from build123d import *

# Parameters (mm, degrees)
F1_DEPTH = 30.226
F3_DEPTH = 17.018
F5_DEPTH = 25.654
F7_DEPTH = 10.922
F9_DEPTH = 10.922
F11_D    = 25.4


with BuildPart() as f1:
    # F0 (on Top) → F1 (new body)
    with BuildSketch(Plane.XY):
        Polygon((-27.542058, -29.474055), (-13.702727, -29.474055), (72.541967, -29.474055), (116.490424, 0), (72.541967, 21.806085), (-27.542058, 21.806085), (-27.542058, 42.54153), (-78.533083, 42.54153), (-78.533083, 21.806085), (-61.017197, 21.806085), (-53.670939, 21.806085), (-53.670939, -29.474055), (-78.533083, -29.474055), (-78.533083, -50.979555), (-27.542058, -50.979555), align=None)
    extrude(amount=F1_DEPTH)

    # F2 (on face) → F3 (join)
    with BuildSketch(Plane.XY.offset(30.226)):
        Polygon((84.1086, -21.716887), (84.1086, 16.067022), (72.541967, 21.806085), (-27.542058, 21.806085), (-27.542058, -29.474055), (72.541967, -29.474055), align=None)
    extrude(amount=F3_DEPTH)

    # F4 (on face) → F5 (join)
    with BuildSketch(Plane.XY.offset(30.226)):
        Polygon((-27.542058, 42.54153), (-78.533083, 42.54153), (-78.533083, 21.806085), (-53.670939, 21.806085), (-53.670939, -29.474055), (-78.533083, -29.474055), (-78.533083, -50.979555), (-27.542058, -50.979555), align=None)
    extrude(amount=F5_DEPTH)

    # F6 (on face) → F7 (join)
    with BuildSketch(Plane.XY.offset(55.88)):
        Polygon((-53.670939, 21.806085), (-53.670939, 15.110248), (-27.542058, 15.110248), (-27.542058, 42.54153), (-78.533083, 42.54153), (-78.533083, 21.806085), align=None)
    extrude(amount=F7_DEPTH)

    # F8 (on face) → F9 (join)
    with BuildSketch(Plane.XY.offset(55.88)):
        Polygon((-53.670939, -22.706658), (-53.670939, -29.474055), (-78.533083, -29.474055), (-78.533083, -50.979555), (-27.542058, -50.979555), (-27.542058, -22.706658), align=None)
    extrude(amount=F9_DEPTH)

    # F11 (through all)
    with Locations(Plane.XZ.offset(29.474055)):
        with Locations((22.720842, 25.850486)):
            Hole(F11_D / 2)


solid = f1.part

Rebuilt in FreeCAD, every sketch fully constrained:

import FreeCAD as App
import Part
import Sketcher
from FreeCAD import Vector
Q = App.Units.Quantity


def add_polygon(sketch, points):
    """Adds a closed chain of lines whose ends are joined by coincident constraints."""
    first, n = sketch.GeometryCount, len(points)
    for a, b in zip(points, points[1:] + points[:1]):
        sketch.addGeometry(Part.LineSegment(App.Vector(*a, 0), App.Vector(*b, 0)), False)
    for i in range(n):
        sketch.addConstraint(Sketcher.Constraint("Coincident", first + i, 2, first + (i + 1) % n, 1))

doc = App.newDocument("Part")
body = doc.addObject("PartDesign::Body", "Body")

# Sketch on XY plane
sketch1 = body.newObject("Sketcher::SketchObject", "Sketch")
sketch1.AttachmentSupport = (doc.getObject("XY_Plane"), [""])
sketch1.MapMode = "FlatFace"
add_polygon(sketch1, [(-27.542058, -29.474055), (72.541967, -29.474055), (116.490424, 0), (72.541967, 21.806085), (-27.542058, 21.806085), (-27.542058, 42.54153), (-78.533083, 42.54153), (-78.533083, 21.806085), (-53.670939, 21.806085), (-53.670939, -29.474055), (-78.533083, -29.474055), (-78.533083, -50.979555), (-27.542058, -50.979555)])  # lines 0-12
sketch1.addConstraint([
    Sketcher.Constraint("Horizontal", 0),
    Sketcher.Constraint("Horizontal", 3),
    Sketcher.Constraint("Vertical", 4),
    Sketcher.Constraint("Horizontal", 5),
    Sketcher.Constraint("Vertical", 6),
    Sketcher.Constraint("Horizontal", 7),
    Sketcher.Constraint("Vertical", 8),
    Sketcher.Constraint("Horizontal", 9),
    Sketcher.Constraint("Vertical", 10),
    Sketcher.Constraint("Horizontal", 11),
    Sketcher.Constraint("Vertical", 12),
    Sketcher.Constraint("PointOnObject", 1, 2, -1),
    Sketcher.Constraint("Horizontal", 3, 2, 6, 2),
    Sketcher.Constraint("Horizontal", 0, 2, 8, 2),
    Sketcher.Constraint("Vertical", 0, 2, 2, 2),
    Sketcher.Constraint("Vertical", 6, 2, 9, 2),
    Sketcher.Constraint("Vertical", 4, 2, 11, 2),
    Sketcher.Constraint("DistanceY", 10, 2, 10, 1, 21.5055),
    Sketcher.Constraint("DistanceY", 8, 2, 8, 1, 51.28014),
    Sketcher.Constraint("Distance", 1, 52.916791),
    Sketcher.Constraint("DistanceX", 0, 1, 0, 2, 100.084025),
    Sketcher.Constraint("DistanceX", 5, 2, 5, 1, 50.991025),
    Sketcher.Constraint("DistanceX", 7, 1, 7, 2, 24.862144),
    Sketcher.Constraint("DistanceY", 4, 1, 4, 2, 20.735445),
    Sketcher.Constraint("DistanceX", 3, 2, -1, 1, 27.542058),
    Sketcher.Constraint("DistanceY", -1, 1, 4, 2, 42.54153),
])
pad1 = body.newObject("PartDesign::Pad", "Pad")
pad1.Profile = sketch1
pad1.Length = Q("1.19 in")

# Sketch on XY plane
sketch2 = body.newObject("Sketcher::SketchObject", "Sketch001")
sketch2.AttachmentSupport = (doc.getObject("XY_Plane"), [""])
sketch2.MapMode = "FlatFace"
sketch2.AttachmentOffset = App.Placement(Vector(0, 0, 1.19 * 25.4), App.Rotation())
add_polygon(sketch2, [(84.1086, -21.716887), (84.1086, 16.067022), (72.541967, 21.806085), (-27.542058, 21.806085), (-27.542058, -29.474055), (72.541967, -29.474055)])  # lines 0-5
sketch2.addConstraint([
    Sketcher.Constraint("Vertical", 0),
    Sketcher.Constraint("Horizontal", 2),
    Sketcher.Constraint("Vertical", 3),
    Sketcher.Constraint("Horizontal", 4),
    Sketcher.Constraint("Vertical", 1, 2, 4, 2),
    Sketcher.Constraint("DistanceY", 0, 1, 0, 2, 37.783909),
    Sketcher.Constraint("DistanceY", 3, 2, 3, 1, 51.28014),
    Sketcher.Constraint("DistanceX", -1, 1, 0, 2, 84.1086),
    Sketcher.Constraint("Distance", 1, 12.912159),
    Sketcher.Constraint("DistanceX", 2, 2, 2, 1, 100.084025),
    Sketcher.Constraint("DistanceX", 2, 2, -1, 1, 27.542058),
    Sketcher.Constraint("DistanceY", -1, 1, 0, 2, 16.067022),
])
pad2 = body.newObject("PartDesign::Pad", "Pad001")
pad2.Profile = sketch2
pad2.Length = Q("0.67 in")

# Sketch on XY plane
sketch3 = body.newObject("Sketcher::SketchObject", "Sketch002")
sketch3.AttachmentSupport = (doc.getObject("XY_Plane"), [""])
sketch3.MapMode = "FlatFace"
sketch3.AttachmentOffset = App.Placement(Vector(0, 0, 1.19 * 25.4), App.Rotation())
add_polygon(sketch3, [(-27.542058, 42.54153), (-78.533083, 42.54153), (-78.533083, 21.806085), (-53.670939, 21.806085), (-53.670939, -29.474055), (-78.533083, -29.474055), (-78.533083, -50.979555), (-27.542058, -50.979555)])  # lines 0-7
sketch3.addConstraint([
    Sketcher.Constraint("Horizontal", 0),
    Sketcher.Constraint("Vertical", 1),
    Sketcher.Constraint("Horizontal", 2),
    Sketcher.Constraint("Vertical", 3),
    Sketcher.Constraint("Horizontal", 4),
    Sketcher.Constraint("Vertical", 5),
    Sketcher.Constraint("Horizontal", 6),
    Sketcher.Constraint("Vertical", 7),
    Sketcher.Constraint("Vertical", 1, 2, 4, 2),
    Sketcher.Constraint("DistanceY", 5, 2, 5, 1, 21.5055),
    Sketcher.Constraint("DistanceY", 3, 2, 3, 1, 51.28014),
    Sketcher.Constraint("DistanceX", 0, 2, 0, 1, 50.991025),
    Sketcher.Constraint("DistanceX", 2, 1, 2, 2, 24.862144),
    Sketcher.Constraint("DistanceY", 1, 2, 1, 1, 20.735445),
    Sketcher.Constraint("DistanceY", -1, 1, 0, 2, 42.54153),
    Sketcher.Constraint("DistanceX", 2, 2, -1, 1, 53.670939),
])
pad3 = body.newObject("PartDesign::Pad", "Pad002")
pad3.Profile = sketch3
pad3.Length = Q("1.01 in")

# Sketch on XY plane
sketch4 = body.newObject("Sketcher::SketchObject", "Sketch003")
sketch4.AttachmentSupport = (doc.getObject("XY_Plane"), [""])
sketch4.MapMode = "FlatFace"
sketch4.AttachmentOffset = App.Placement(Vector(0, 0, 2.2 * 25.4), App.Rotation())
add_polygon(sketch4, [(-53.670939, 21.806085), (-53.670939, 15.110248), (-27.542058, 15.110248), (-27.542058, 42.54153), (-78.533083, 42.54153), (-78.533083, 21.806085)])  # lines 0-5
sketch4.addConstraint([
    Sketcher.Constraint("Vertical", 0),
    Sketcher.Constraint("Horizontal", 1),
    Sketcher.Constraint("Vertical", 2),
    Sketcher.Constraint("Horizontal", 3),
    Sketcher.Constraint("Vertical", 4),
    Sketcher.Constraint("Horizontal", 5),
    Sketcher.Constraint("DistanceX", 1, 1, 1, 2, 26.128881),
    Sketcher.Constraint("DistanceX", 3, 2, 3, 1, 50.991025),
    Sketcher.Constraint("DistanceY", 0, 2, 0, 1, 6.695837),
    Sketcher.Constraint("DistanceY", 2, 1, 2, 2, 27.431282),
    Sketcher.Constraint("DistanceX", 0, 2, -1, 1, 53.670939),
    Sketcher.Constraint("DistanceY", -1, 1, 2, 2, 42.54153),
])
pad4 = body.newObject("PartDesign::Pad", "Pad003")
pad4.Profile = sketch4
pad4.Length = Q("0.43 in")

# Sketch on XY plane
sketch5 = body.newObject("Sketcher::SketchObject", "Sketch004")
sketch5.AttachmentSupport = (doc.getObject("XY_Plane"), [""])
sketch5.MapMode = "FlatFace"
sketch5.AttachmentOffset = App.Placement(Vector(0, 0, 2.2 * 25.4), App.Rotation())
add_polygon(sketch5, [(-53.670939, -22.706658), (-53.670939, -29.474055), (-78.533083, -29.474055), (-78.533083, -50.979555), (-27.542058, -50.979555), (-27.542058, -22.706658)])  # lines 0-5
sketch5.addConstraint([
    Sketcher.Constraint("Vertical", 0),
    Sketcher.Constraint("Horizontal", 1),
    Sketcher.Constraint("Vertical", 2),
    Sketcher.Constraint("Horizontal", 3),
    Sketcher.Constraint("Vertical", 4),
    Sketcher.Constraint("Horizontal", 5),
    Sketcher.Constraint("DistanceY", 2, 2, 2, 1, 21.5055),
    Sketcher.Constraint("DistanceX", 5, 2, 5, 1, 26.128881),
    Sketcher.Constraint("DistanceX", 1, 2, 1, 1, 24.862144),
    Sketcher.Constraint("DistanceY", 0, 2, 0, 1, 6.767397),
    Sketcher.Constraint("DistanceX", 0, 2, -1, 1, 53.670939),
    Sketcher.Constraint("DistanceY", 4, 2, -1, 1, 22.706658),
])
pad5 = body.newObject("PartDesign::Pad", "Pad004")
pad5.Profile = sketch5
pad5.Length = Q("0.43 in")

# Sketch on XZ plane
sketch6 = body.newObject("Sketcher::SketchObject", "Sketch005")
sketch6.AttachmentSupport = (doc.getObject("XZ_Plane"), [""])
sketch6.MapMode = "FlatFace"
sketch6.AttachmentOffset = App.Placement(Vector(0, 0, 29.474055), App.Rotation())
sketch6.addGeometry(Part.Circle(Vector(22.720842, 25.850486, 0), Vector(0, 0, 1), 12.7), False)
sketch6.addConstraint([
    Sketcher.Constraint("Diameter", 0, Q("1 in")),
    Sketcher.Constraint("DistanceX", -1, 1, 0, 3, 22.720842),
    Sketcher.Constraint("DistanceY", -1, 1, 0, 3, 25.850486),
])
doc.recompute()
hole = body.newObject("PartDesign::Hole", "Hole")
hole.Profile = sketch6
hole.ThreadType = "None"
hole.Diameter = Q("1 in")
hole.DepthType = "ThroughAll"

doc.recompute()
